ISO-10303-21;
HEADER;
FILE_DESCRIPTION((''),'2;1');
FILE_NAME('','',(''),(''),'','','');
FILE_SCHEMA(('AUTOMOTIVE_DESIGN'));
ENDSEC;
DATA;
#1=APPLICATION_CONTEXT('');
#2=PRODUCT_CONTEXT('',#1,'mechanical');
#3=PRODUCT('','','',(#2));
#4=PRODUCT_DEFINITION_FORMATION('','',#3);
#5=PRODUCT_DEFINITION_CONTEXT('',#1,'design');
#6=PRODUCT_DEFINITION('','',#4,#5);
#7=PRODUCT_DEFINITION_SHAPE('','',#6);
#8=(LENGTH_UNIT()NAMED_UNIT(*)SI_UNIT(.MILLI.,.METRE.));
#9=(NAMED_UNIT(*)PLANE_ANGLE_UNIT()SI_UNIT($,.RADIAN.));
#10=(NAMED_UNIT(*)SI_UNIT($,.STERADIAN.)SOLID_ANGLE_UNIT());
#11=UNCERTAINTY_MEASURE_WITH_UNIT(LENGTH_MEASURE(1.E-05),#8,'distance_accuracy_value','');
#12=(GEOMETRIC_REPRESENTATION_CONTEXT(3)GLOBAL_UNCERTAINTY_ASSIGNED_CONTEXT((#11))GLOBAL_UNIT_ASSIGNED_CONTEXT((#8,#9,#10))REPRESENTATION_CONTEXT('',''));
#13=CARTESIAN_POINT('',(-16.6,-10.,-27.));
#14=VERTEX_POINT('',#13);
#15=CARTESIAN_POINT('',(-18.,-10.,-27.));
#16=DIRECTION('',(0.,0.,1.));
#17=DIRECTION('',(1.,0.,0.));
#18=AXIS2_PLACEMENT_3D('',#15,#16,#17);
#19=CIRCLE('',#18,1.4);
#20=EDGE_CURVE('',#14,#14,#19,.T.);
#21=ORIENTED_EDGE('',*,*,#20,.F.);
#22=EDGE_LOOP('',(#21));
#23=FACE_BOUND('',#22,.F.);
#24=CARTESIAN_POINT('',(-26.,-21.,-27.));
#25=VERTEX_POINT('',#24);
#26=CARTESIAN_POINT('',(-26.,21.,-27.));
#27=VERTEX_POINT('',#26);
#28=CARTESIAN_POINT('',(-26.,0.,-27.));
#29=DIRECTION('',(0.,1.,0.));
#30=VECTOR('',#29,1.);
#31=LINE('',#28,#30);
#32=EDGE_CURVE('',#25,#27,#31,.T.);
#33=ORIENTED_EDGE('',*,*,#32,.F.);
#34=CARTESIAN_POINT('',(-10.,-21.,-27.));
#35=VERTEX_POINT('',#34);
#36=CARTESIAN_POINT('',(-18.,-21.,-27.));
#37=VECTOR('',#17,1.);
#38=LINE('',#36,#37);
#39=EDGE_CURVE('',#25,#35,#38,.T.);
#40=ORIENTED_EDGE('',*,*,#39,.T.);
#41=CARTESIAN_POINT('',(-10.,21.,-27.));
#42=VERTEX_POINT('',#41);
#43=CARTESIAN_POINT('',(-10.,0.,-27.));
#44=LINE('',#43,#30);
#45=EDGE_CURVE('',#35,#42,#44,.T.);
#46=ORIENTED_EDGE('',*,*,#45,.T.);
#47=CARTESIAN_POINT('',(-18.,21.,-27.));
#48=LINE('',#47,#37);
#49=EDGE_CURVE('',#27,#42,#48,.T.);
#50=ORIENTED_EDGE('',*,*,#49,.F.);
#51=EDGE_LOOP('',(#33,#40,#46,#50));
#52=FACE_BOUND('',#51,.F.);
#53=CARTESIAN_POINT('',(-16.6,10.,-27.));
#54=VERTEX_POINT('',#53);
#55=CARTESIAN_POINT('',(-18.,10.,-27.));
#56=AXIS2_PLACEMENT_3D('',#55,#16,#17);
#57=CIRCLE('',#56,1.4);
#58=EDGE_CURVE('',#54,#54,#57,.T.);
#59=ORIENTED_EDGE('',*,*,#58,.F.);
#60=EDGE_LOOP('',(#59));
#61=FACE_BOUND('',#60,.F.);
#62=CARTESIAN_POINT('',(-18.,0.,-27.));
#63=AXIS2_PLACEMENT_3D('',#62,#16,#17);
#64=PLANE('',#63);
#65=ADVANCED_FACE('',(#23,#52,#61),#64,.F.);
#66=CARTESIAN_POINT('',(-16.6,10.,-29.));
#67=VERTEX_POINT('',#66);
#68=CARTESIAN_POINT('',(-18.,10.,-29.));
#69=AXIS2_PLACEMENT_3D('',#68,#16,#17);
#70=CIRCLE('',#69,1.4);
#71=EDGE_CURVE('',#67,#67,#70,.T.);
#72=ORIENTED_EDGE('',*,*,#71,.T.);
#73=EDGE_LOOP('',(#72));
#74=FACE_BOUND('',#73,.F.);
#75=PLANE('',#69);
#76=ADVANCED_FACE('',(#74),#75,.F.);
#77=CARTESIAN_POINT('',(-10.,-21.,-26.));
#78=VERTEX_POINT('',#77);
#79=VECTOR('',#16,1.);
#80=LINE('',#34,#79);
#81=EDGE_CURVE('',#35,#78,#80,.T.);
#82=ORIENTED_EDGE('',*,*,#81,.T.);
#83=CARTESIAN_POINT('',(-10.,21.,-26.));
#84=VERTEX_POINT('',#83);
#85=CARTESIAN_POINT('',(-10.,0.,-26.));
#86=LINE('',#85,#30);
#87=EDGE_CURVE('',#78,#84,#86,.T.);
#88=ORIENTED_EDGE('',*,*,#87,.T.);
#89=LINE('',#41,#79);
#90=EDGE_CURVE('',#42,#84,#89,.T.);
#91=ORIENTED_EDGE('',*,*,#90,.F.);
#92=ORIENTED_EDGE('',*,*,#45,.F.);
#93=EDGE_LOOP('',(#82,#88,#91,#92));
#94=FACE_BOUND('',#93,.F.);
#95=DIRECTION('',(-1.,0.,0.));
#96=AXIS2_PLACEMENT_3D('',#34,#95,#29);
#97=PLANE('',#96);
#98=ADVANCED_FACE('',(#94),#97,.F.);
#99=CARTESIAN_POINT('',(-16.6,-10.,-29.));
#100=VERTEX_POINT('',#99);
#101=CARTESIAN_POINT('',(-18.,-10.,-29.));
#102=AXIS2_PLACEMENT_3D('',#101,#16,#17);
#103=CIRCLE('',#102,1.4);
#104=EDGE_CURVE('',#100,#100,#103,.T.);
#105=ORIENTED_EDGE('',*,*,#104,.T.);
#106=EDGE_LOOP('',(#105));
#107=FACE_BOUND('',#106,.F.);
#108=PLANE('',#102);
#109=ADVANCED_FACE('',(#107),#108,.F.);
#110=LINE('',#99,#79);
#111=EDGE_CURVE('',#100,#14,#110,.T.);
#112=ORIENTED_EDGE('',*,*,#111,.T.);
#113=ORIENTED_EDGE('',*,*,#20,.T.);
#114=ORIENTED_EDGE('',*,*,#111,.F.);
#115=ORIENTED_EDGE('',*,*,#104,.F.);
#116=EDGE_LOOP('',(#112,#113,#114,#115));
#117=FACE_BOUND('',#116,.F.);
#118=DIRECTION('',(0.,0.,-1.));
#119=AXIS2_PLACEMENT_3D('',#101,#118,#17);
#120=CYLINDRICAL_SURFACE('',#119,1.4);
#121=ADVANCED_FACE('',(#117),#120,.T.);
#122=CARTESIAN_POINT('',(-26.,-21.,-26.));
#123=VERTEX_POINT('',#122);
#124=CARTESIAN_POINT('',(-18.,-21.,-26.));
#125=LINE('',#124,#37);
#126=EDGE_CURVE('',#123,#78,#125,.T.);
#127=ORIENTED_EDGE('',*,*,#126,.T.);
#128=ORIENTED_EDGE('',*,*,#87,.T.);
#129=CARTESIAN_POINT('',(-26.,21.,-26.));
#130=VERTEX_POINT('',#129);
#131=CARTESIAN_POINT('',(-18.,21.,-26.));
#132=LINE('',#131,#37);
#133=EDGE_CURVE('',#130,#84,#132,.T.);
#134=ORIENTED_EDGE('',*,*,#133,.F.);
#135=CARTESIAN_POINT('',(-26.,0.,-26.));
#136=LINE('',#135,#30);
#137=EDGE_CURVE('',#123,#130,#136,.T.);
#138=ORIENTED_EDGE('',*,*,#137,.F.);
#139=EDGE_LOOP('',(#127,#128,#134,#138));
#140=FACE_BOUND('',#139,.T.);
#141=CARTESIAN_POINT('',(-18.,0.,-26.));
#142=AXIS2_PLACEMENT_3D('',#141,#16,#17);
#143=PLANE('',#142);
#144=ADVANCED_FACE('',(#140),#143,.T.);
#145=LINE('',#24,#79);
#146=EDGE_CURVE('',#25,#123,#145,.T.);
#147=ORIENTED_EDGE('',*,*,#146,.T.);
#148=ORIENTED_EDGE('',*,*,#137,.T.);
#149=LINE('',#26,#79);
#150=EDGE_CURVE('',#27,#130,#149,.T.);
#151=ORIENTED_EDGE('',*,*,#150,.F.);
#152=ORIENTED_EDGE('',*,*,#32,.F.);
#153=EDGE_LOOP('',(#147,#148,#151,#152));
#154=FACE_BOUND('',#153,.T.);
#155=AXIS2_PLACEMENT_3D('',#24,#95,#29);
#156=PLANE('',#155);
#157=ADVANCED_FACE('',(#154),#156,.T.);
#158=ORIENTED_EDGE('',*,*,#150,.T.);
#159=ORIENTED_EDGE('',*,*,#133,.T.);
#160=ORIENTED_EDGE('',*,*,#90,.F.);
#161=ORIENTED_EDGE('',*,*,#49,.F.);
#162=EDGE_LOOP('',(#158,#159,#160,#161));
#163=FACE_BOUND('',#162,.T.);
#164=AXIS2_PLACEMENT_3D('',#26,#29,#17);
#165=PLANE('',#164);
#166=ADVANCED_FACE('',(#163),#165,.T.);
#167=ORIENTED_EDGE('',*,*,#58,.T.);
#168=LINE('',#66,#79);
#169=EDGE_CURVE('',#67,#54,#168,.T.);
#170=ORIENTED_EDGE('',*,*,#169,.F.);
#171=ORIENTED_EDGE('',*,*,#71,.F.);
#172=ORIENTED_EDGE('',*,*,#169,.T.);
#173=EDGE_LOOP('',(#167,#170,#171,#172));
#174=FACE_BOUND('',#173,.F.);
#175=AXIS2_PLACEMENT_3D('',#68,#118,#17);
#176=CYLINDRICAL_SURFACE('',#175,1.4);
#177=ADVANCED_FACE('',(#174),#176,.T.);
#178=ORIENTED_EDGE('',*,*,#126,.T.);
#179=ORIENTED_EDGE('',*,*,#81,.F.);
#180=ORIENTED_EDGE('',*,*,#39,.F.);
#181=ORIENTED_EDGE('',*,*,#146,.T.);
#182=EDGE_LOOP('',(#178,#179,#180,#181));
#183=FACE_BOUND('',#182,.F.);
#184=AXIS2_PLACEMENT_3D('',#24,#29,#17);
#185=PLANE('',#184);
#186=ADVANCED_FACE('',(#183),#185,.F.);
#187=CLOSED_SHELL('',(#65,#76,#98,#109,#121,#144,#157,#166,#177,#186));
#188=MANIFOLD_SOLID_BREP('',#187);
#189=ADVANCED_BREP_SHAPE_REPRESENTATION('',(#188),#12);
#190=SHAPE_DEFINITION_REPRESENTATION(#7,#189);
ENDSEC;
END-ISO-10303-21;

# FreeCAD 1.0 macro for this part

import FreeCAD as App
import Part
import Sketcher

V = App.Vector
Q = App.Units.Quantity


def add_polygon(sketch, points):
    """Adds a closed chain of lines whose ends are joined by coincident constraints."""
    first, n = sketch.GeometryCount, len(points)
    for a, b in zip(points, points[1:] + points[:1]):
        sketch.addGeometry(Part.LineSegment(App.Vector(*a, 0), App.Vector(*b, 0)), False)
    for i in range(n):
        sketch.addConstraint(Sketcher.Constraint("Coincident", first + i, 2, first + (i + 1) % n, 1))

doc = App.newDocument("Part")
body = doc.addObject("PartDesign::Body", "Body")

sketch1 = doc.addObject("Sketcher::SketchObject", "Sketch")
body.addObject(sketch1)
sketch1.AttachmentSupport = (doc.XY_Plane, [""])
sketch1.MapMode = "FlatFace"
sketch1.AttachmentOffset = App.Placement(V(0, 0, -29.5), App.Rotation())
sketch1.addGeometry(Part.Circle(V(16.5, 10, 0), V(0, 0, 1), 1.4), False)
sketch1.addConstraint(Sketcher.Constraint("Diameter", 0, Q("2.8 mm")))
sketch1.addConstraint(Sketcher.Constraint("DistanceY", -1, 1, 0, 3, Q("10 mm")))
sketch1.addConstraint(Sketcher.Constraint("DistanceX", -1, 1, 0, 3, Q("16.5 mm")))
pad1 = doc.addObject("PartDesign::Pad", "Pad")
body.addObject(pad1)
pad1.Profile = sketch1
pad1.Length = 2
body2 = doc.addObject("PartDesign::Body", "Body001")

sketch2 = doc.addObject("Sketcher::SketchObject", "Sketch001")
body2.addObject(sketch2)
sketch2.AttachmentSupport = (doc.getObject("XY_Plane001"), [""])
sketch2.MapMode = "FlatFace"
sketch2.AttachmentOffset = App.Placement(V(0, 0, -29.5), App.Rotation())
sketch2.addGeometry(Part.Circle(V(16.5, -10, 0), V(0, 0, 1), 1.4), False)
sketch2.addConstraint(Sketcher.Constraint("Diameter", 0, Q("2.8 mm")))
sketch2.addConstraint(Sketcher.Constraint("DistanceY", 0, 3, -1, 1, Q("10 mm")))
sketch2.addConstraint(Sketcher.Constraint("DistanceX", -1, 1, 0, 3, Q("16.5 mm")))
pad2 = doc.addObject("PartDesign::Pad", "Pad001")
body2.addObject(pad2)
pad2.Profile = sketch2
pad2.Length = 2
body3 = doc.addObject("PartDesign::Body", "Body002")

sketch3 = doc.addObject("Sketcher::SketchObject", "Sketch002")
body3.addObject(sketch3)
sketch3.AttachmentSupport = (doc.getObject("XY_Plane002"), [""])
sketch3.MapMode = "FlatFace"
sketch3.AttachmentOffset = App.Placement(V(0, 0, -27.5), App.Rotation())
add_polygon(sketch3, [(8, 21), (8, -21), (24, -21), (24, 21)])
sketch3.addConstraint(Sketcher.Constraint("Vertical", 0))
sketch3.addConstraint(Sketcher.Constraint("Horizontal", 1))
sketch3.addConstraint(Sketcher.Constraint("Vertical", 2))
sketch3.addConstraint(Sketcher.Constraint("Horizontal", 3))
sketch3.addConstraint(Sketcher.Constraint("DistanceX", 1, 1, 1, 2, Q("16 mm")))
sketch3.addConstraint(Sketcher.Constraint("DistanceY", 0, 2, 0, 1, Q("42 mm")))
sketch3.addConstraint(Sketcher.Constraint("DistanceY", 0, 2, -1, 1, Q("21 mm")))
sketch3.addConstraint(Sketcher.Constraint("DistanceX", -1, 1, 0, 2, Q("8.5 mm")))
pad3 = doc.addObject("PartDesign::Pad", "Pad002")
body3.addObject(pad3)
pad3.Profile = sketch3
pad3.Length = 1
doc.recompute()

boolean = doc.addObject("PartDesign::Boolean", "Boolean")
body3.addObject(boolean)
boolean.Type = "Fuse"
boolean.addObjects([body])
doc.recompute()

boolean2 = doc.addObject("PartDesign::Boolean", "Boolean001")
body3.addObject(boolean2)
boolean2.Type = "Fuse"
boolean2.addObjects([body2])
body4 = doc.addObject("PartDesign::Body", "Body003")
doc.recompute()

body3.Placement = App.Placement(V(-34.5, 0, 0.5), App.Rotation(V(0, 0, 1), 0))
boolean3 = doc.addObject("PartDesign::Boolean", "Boolean002")
body4.addObject(boolean3)
boolean3.Type = "Fuse"
boolean3.addObjects([body3])

doc.recompute()
